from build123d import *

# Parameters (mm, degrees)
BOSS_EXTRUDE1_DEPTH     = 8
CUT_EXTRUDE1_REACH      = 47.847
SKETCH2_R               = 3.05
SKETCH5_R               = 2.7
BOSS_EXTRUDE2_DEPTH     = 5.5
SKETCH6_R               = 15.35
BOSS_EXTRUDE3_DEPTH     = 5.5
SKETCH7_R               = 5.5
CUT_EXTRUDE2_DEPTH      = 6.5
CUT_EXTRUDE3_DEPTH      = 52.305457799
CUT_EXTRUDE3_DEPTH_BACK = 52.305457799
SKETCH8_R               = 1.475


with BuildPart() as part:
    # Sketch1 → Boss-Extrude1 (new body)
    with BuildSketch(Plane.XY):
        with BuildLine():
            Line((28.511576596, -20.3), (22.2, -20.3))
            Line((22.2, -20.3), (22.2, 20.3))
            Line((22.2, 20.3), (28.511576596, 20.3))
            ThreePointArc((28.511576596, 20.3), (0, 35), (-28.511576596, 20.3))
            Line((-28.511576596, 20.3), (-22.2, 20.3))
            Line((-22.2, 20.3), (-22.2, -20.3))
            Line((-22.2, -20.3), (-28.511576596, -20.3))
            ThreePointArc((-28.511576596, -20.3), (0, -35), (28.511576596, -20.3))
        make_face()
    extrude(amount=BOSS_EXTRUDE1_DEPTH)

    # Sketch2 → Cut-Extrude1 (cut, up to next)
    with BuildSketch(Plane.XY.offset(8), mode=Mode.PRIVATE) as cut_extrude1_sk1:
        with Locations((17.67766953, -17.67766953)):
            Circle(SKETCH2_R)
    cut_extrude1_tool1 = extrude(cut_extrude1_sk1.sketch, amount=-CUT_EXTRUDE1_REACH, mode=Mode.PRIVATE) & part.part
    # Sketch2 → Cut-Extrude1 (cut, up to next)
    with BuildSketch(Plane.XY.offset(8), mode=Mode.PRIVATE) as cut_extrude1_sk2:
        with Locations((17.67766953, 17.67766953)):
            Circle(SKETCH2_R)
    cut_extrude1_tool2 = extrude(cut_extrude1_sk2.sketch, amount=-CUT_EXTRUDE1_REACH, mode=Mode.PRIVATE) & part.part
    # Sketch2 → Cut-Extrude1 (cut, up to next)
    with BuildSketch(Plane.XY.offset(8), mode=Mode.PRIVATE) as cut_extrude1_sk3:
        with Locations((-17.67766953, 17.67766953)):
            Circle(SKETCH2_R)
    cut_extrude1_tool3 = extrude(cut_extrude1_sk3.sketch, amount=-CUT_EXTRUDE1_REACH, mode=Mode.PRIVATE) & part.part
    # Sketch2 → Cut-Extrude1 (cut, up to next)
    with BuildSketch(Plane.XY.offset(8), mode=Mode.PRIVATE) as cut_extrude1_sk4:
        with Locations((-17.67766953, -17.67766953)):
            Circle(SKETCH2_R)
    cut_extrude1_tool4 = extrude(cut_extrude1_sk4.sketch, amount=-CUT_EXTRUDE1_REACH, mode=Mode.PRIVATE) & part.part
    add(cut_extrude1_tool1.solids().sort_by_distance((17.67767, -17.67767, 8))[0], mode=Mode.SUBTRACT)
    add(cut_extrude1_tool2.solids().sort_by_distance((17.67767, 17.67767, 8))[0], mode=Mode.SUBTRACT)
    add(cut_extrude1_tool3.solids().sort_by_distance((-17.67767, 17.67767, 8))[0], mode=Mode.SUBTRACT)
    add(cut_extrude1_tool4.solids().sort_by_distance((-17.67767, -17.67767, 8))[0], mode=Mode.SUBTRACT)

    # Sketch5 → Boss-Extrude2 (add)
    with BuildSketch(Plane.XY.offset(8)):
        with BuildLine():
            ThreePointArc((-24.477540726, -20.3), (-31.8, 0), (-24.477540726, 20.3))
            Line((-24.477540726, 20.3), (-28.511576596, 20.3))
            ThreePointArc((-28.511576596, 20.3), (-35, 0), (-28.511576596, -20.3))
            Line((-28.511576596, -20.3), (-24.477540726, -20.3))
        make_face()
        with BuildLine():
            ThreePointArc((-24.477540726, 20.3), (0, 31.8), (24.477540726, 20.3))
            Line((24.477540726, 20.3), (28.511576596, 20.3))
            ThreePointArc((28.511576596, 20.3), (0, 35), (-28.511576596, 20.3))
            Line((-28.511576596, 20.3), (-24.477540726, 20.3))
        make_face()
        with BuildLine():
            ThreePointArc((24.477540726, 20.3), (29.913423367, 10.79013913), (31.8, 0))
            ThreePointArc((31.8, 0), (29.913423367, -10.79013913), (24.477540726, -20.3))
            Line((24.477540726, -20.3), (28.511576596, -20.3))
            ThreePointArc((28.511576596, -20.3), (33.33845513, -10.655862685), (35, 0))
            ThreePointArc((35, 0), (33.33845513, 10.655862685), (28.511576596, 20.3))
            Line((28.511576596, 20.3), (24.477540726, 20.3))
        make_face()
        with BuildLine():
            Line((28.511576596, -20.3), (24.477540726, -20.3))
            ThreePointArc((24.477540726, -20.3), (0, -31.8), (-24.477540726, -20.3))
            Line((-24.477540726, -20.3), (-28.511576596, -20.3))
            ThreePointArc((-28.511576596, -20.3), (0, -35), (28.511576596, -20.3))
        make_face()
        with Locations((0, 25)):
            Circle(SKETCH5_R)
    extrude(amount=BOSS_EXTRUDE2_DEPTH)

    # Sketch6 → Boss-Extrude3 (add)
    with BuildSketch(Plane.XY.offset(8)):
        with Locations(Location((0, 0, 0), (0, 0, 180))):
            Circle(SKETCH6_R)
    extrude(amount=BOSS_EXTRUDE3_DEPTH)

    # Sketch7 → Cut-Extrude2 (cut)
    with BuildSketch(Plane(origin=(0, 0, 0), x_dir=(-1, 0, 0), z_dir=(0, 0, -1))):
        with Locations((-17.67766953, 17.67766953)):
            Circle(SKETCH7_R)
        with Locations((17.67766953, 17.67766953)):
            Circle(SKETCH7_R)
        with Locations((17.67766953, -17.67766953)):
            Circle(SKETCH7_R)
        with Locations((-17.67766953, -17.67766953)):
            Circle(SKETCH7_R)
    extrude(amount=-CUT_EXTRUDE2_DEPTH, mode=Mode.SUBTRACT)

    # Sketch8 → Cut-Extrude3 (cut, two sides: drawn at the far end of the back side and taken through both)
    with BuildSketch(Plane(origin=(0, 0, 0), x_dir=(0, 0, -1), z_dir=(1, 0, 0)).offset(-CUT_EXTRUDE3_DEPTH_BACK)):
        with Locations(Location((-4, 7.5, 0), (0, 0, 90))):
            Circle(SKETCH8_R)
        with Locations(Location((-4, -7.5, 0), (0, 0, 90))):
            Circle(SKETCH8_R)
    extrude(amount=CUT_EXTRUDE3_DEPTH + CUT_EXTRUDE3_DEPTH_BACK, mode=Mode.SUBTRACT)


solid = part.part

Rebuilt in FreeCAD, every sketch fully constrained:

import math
import FreeCAD as App
import Part
import Sketcher
from FreeCAD import Vector

doc = App.newDocument("Part")
body = doc.addObject("PartDesign::Body", "Body")

# Sketch on XY plane
sketch1 = body.newObject("Sketcher::SketchObject", "Sketch")
sketch1.AttachmentSupport = (doc.getObject("XY_Plane"), [""])
sketch1.MapMode = "FlatFace"
sketch1.addGeometry(Part.LineSegment(Vector(28.511577, -20.3, 0), Vector(22.2, -20.3, 0)), False)
sketch1.addGeometry(Part.LineSegment(Vector(22.2, -20.3, 0), Vector(22.2, 20.3, 0)), False)
sketch1.addGeometry(Part.LineSegment(Vector(22.2, 20.3, 0), Vector(28.511577, 20.3, 0)), False)
sketch1.addGeometry(Part.ArcOfCircle(Part.Circle(Vector(0, 0, 0), Vector(0, 0, 1), 35), math.radians(35.450543), math.radians(144.549457)), False)
sketch1.addGeometry(Part.LineSegment(Vector(-28.511577, 20.3, 0), Vector(-22.2, 20.3, 0)), False)
sketch1.addGeometry(Part.LineSegment(Vector(-22.2, 20.3, 0), Vector(-22.2, -20.3, 0)), False)
sketch1.addGeometry(Part.LineSegment(Vector(-22.2, -20.3, 0), Vector(-28.511577, -20.3, 0)), False)
sketch1.addGeometry(Part.ArcOfCircle(Part.Circle(Vector(0, 0, 0), Vector(0, 0, 1), 35), math.radians(-144.549457), math.radians(-35.450543)), False)
sketch1.addConstraint(Sketcher.Constraint("Coincident", 0, 2, 1, 1))
sketch1.addConstraint(Sketcher.Constraint("Coincident", 1, 2, 2, 1))
sketch1.addConstraint(Sketcher.Constraint("Coincident", 2, 2, 3, 1))
sketch1.addConstraint(Sketcher.Constraint("Coincident", 3, 2, 4, 1))
sketch1.addConstraint(Sketcher.Constraint("Coincident", 4, 2, 5, 1))
sketch1.addConstraint(Sketcher.Constraint("Coincident", 5, 2, 6, 1))
sketch1.addConstraint(Sketcher.Constraint("Coincident", 6, 2, 7, 1))
sketch1.addConstraint(Sketcher.Constraint("Coincident", 7, 2, 0, 1))
sketch1.addConstraint(Sketcher.Constraint("Horizontal", 0))
sketch1.addConstraint(Sketcher.Constraint("Vertical", 1))
sketch1.addConstraint(Sketcher.Constraint("Horizontal", 2))
sketch1.addConstraint(Sketcher.Constraint("Horizontal", 4))
sketch1.addConstraint(Sketcher.Constraint("Vertical", 5))
sketch1.addConstraint(Sketcher.Constraint("Horizontal", 6))
sketch1.addConstraint(Sketcher.Constraint("Coincident", 3, 3, -1, 1))
sketch1.addConstraint(Sketcher.Constraint("Coincident", 7, 3, -1, 1))
sketch1.addConstraint(Sketcher.Constraint("Equal", 3, 7))
sketch1.addConstraint(Sketcher.Constraint("Symmetric", 0, 2, 4, 2, -1, 1))
sketch1.addConstraint(Sketcher.Constraint("Horizontal", 2, 2, 3, 2))
sketch1.addConstraint(Sketcher.Constraint("Horizontal", 0, 2, 5, 2))
sketch1.addConstraint(Sketcher.Constraint("Radius", 3, 35.0))
sketch1.addConstraint(Sketcher.Constraint("DistanceY", 1, 1, 1, 2, 40.6))
sketch1.addConstraint(Sketcher.Constraint("DistanceX", -1, 1, 0, 2, 22.2))
pad1 = body.newObject("PartDesign::Pad", "Pad")
pad1.Profile = sketch1
pad1.Length = 8

# Sketch on XY plane
sketch2 = body.newObject("Sketcher::SketchObject", "Sketch001")
sketch2.AttachmentSupport = (doc.getObject("XY_Plane"), [""])
sketch2.MapMode = "FlatFace"
sketch2.AttachmentOffset = App.Placement(Vector(0, 0, 8), App.Rotation())
sketch2.addGeometry(Part.Circle(Vector(17.67767, -17.67767, 0), Vector(0, 0, 1), 3.05), False)
sketch2.addConstraint(Sketcher.Constraint("Diameter", 0, 6.1))
sketch2.addConstraint(Sketcher.Constraint("DistanceX", -1, 1, 0, 3, 17.67767))
sketch2.addConstraint(Sketcher.Constraint("DistanceY", 0, 3, -1, 1, 17.67767))
pocket1 = body.newObject("PartDesign::Pocket", "Pocket")
pocket1.Profile = sketch2
pocket1.Type = "UpToFirst"

# Sketch on XY plane
sketch3 = body.newObject("Sketcher::SketchObject", "Sketch002")
sketch3.AttachmentSupport = (doc.getObject("XY_Plane"), [""])
sketch3.MapMode = "FlatFace"
sketch3.AttachmentOffset = App.Placement(Vector(0, 0, 8), App.Rotation())
sketch3.addGeometry(Part.Circle(Vector(17.67767, 17.67767, 0), Vector(0, 0, 1), 3.05), False)
sketch3.addConstraint(Sketcher.Constraint("Diameter", 0, 6.1))
sketch3.addConstraint(Sketcher.Constraint("DistanceX", -1, 1, 0, 3, 17.67767))
sketch3.addConstraint(Sketcher.Constraint("DistanceY", -1, 1, 0, 3, 17.67767))
pocket2 = body.newObject("PartDesign::Pocket", "Pocket001")
pocket2.Profile = sketch3
pocket2.Type = "UpToFirst"

# Sketch on XY plane
sketch4 = body.newObject("Sketcher::SketchObject", "Sketch003")
sketch4.AttachmentSupport = (doc.getObject("XY_Plane"), [""])
sketch4.MapMode = "FlatFace"
sketch4.AttachmentOffset = App.Placement(Vector(0, 0, 8), App.Rotation())
sketch4.addGeometry(Part.Circle(Vector(-17.67767, 17.67767, 0), Vector(0, 0, 1), 3.05), False)
sketch4.addConstraint(Sketcher.Constraint("Diameter", 0, 6.1))
sketch4.addConstraint(Sketcher.Constraint("DistanceX", 0, 3, -1, 1, 17.67767))
sketch4.addConstraint(Sketcher.Constraint("DistanceY", -1, 1, 0, 3, 17.67767))
pocket3 = body.newObject("PartDesign::Pocket", "Pocket002")
pocket3.Profile = sketch4
pocket3.Type = "UpToFirst"

# Sketch on XY plane
sketch5 = body.newObject("Sketcher::SketchObject", "Sketch004")
sketch5.AttachmentSupport = (doc.getObject("XY_Plane"), [""])
sketch5.MapMode = "FlatFace"
sketch5.AttachmentOffset = App.Placement(Vector(0, 0, 8), App.Rotation())
sketch5.addGeometry(Part.Circle(Vector(-17.67767, -17.67767, 0), Vector(0, 0, 1), 3.05), False)
sketch5.addConstraint(Sketcher.Constraint("Diameter", 0, 6.1))
sketch5.addConstraint(Sketcher.Constraint("DistanceX", 0, 3, -1, 1, 17.67767))
sketch5.addConstraint(Sketcher.Constraint("DistanceY", 0, 3, -1, 1, 17.67767))
pocket4 = body.newObject("PartDesign::Pocket", "Pocket003")
pocket4.Profile = sketch5
pocket4.Type = "UpToFirst"

# Sketch on XY plane
sketch6 = body.newObject("Sketcher::SketchObject", "Sketch005")
sketch6.AttachmentSupport = (doc.getObject("XY_Plane"), [""])
sketch6.MapMode = "FlatFace"
sketch6.AttachmentOffset = App.Placement(Vector(0, 0, 8), App.Rotation())
sketch6.addGeometry(Part.ArcOfCircle(Part.Circle(Vector(0, 0, 0), Vector(0, 0, 1), 35), math.radians(-35.450543), math.radians(0)), False)
sketch6.addGeometry(Part.ArcOfCircle(Part.Circle(Vector(0, 0, 0), Vector(0, 0, 1), 35), math.radians(0), math.radians(35.450543)), False)
sketch6.addGeometry(Part.ArcOfCircle(Part.Circle(Vector(0, 0, 0), Vector(0, 0, 1), 35), math.radians(35.450543), math.radians(144.549457)), False)
sketch6.addGeometry(Part.ArcOfCircle(Part.Circle(Vector(0, 0, 0), Vector(0, 0, 1), 35), math.radians(144.549457), math.radians(215.450543)), False)
sketch6.addGeometry(Part.ArcOfCircle(Part.Circle(Vector(0, 0, 0), Vector(0, 0, 1), 35), math.radians(-144.549457), math.radians(-35.450543)), False)
sketch6.addGeometry(Part.ArcOfCircle(Part.Circle(Vector(0, 0, 0), Vector(0, 0, 1), 31.8), math.radians(140.330007), math.radians(219.669993)), False)
sketch6.addGeometry(Part.ArcOfCircle(Part.Circle(Vector(0, 0, 0), Vector(0, 0, 1), 31.8), math.radians(39.669993), math.radians(140.330007)), False)
sketch6.addGeometry(Part.ArcOfCircle(Part.Circle(Vector(0, 0, 0), Vector(0, 0, 1), 31.8), math.radians(0), math.radians(39.669993)), False)
sketch6.addGeometry(Part.ArcOfCircle(Part.Circle(Vector(0, 0, 0), Vector(0, 0, 1), 31.8), math.radians(-39.669993), math.radians(0)), False)
sketch6.addGeometry(Part.ArcOfCircle(Part.Circle(Vector(0, 0, 0), Vector(0, 0, 1), 31.8), math.radians(-140.330007), math.radians(-39.669993)), False)
sketch6.addGeometry(Part.Circle(Vector(0, 25, 0), Vector(0, 0, 1), 2.7), False)
sketch6.addConstraint(Sketcher.Constraint("Tangent", 0, 2, 1, 1))
sketch6.addConstraint(Sketcher.Constraint("Tangent", 1, 2, 2, 1))
sketch6.addConstraint(Sketcher.Constraint("Tangent", 2, 2, 3, 1))
sketch6.addConstraint(Sketcher.Constraint("Tangent", 3, 2, 4, 1))
sketch6.addConstraint(Sketcher.Constraint("Tangent", 4, 2, 0, 1))
sketch6.addConstraint(Sketcher.Constraint("Tangent", 5, 1, 6, 2))
sketch6.addConstraint(Sketcher.Constraint("Tangent", 6, 1, 7, 2))
sketch6.addConstraint(Sketcher.Constraint("Tangent", 7, 1, 8, 2))
sketch6.addConstraint(Sketcher.Constraint("Tangent", 8, 1, 9, 2))
sketch6.addConstraint(Sketcher.Constraint("Tangent", 9, 1, 5, 2))
sketch6.addConstraint(Sketcher.Constraint("Coincident", 0, 3, -1, 1))
sketch6.addConstraint(Sketcher.Constraint("Coincident", 2, 3, -1, 1))
sketch6.addConstraint(Sketcher.Constraint("Coincident", 5, 3, -1, 1))
sketch6.addConstraint(Sketcher.Constraint("Coincident", 7, 3, -1, 1))
sketch6.addConstraint(Sketcher.Constraint("PointOnObject", 10, 3, -2))
sketch6.addConstraint(Sketcher.Constraint("PointOnObject", 0, 2, -1))
sketch6.addConstraint(Sketcher.Constraint("PointOnObject", 7, 1, -1))
sketch6.addConstraint(Sketcher.Constraint("Horizontal", 1, 2, 2, 2))
sketch6.addConstraint(Sketcher.Constraint("Horizontal", 3, 2, 4, 2))
sketch6.addConstraint(Sketcher.Constraint("Horizontal", 2, 2, 5, 1))
sketch6.addConstraint(Sketcher.Constraint("Horizontal", 5, 1, 6, 1))
sketch6.addConstraint(Sketcher.Constraint("Horizontal", 4, 2, 8, 1))
sketch6.addConstraint(Sketcher.Constraint("Horizontal", 8, 1, 9, 1))
sketch6.addConstraint(Sketcher.Constraint("Vertical", 2, 2, 3, 2))
sketch6.addConstraint(Sketcher.Constraint("Radius", 0, 35.0))
sketch6.addConstraint(Sketcher.Constraint("Diameter", 10, 5.4))
sketch6.addConstraint(Sketcher.Constraint("Radius", 5, 31.8))
sketch6.addConstraint(Sketcher.Constraint("DistanceY", -1, 1, 10, 3, 25.0))
sketch6.addConstraint(Sketcher.Constraint("DistanceY", -1, 1, 1, 2, 20.3))
pad2 = body.newObject("PartDesign::Pad", "Pad001")
pad2.Profile = sketch6
pad2.Length = 5.5

# Sketch on XY plane
sketch7 = body.newObject("Sketcher::SketchObject", "Sketch006")
sketch7.AttachmentSupport = (doc.getObject("XY_Plane"), [""])
sketch7.MapMode = "FlatFace"
sketch7.AttachmentOffset = App.Placement(Vector(0, 0, 8), App.Rotation())
sketch7.addGeometry(Part.Circle(Vector(0, 0, 0), Vector(0, 0, 1), 15.35), False)
sketch7.addConstraint(Sketcher.Constraint("Coincident", 0, 3, -1, 1))
sketch7.addConstraint(Sketcher.Constraint("Diameter", 0, 30.7))
pad3 = body.newObject("PartDesign::Pad", "Pad002")
pad3.Profile = sketch7
pad3.Length = 5.5

# Sketch on XY plane
sketch8 = body.newObject("Sketcher::SketchObject", "Sketch007")
sketch8.AttachmentSupport = (doc.getObject("XY_Plane"), [""])
sketch8.MapMode = "FlatFace"
sketch8.addGeometry(Part.Circle(Vector(17.67767, 17.67767, 0), Vector(0, 0, 1), 5.5), False)
sketch8.addGeometry(Part.Circle(Vector(-17.67767, 17.67767, 0), Vector(0, 0, 1), 5.5), False)
sketch8.addGeometry(Part.Circle(Vector(-17.67767, -17.67767, 0), Vector(0, 0, 1), 5.5), False)
sketch8.addGeometry(Part.Circle(Vector(17.67767, -17.67767, 0), Vector(0, 0, 1), 5.5), False)
sketch8.addConstraint(Sketcher.Constraint("Equal", 0, 1))
sketch8.addConstraint(Sketcher.Constraint("Equal", 1, 2))
sketch8.addConstraint(Sketcher.Constraint("Equal", 2, 3))
sketch8.addConstraint(Sketcher.Constraint("Symmetric", 0, 3, 2, 3, -1, 1))
sketch8.addConstraint(Sketcher.Constraint("Symmetric", 1, 3, 3, 3, -1, 1))
sketch8.addConstraint(Sketcher.Constraint("Symmetric", 0, 3, 1, 3, -2))
sketch8.addConstraint(Sketcher.Constraint("Diameter", 0, 11.0))
sketch8.addConstraint(Sketcher.Constraint("DistanceX", -1, 1, 0, 3, 17.67767))
sketch8.addConstraint(Sketcher.Constraint("DistanceY", -1, 1, 0, 3, 17.67767))
pocket5 = body.newObject("PartDesign::Pocket", "Pocket004")
pocket5.Profile = sketch8
pocket5.Length = 6.5
pocket5.Reversed = True

# Sketch on YZ plane
sketch9 = body.newObject("Sketcher::SketchObject", "Sketch008")
sketch9.AttachmentSupport = (doc.getObject("YZ_Plane"), [""])
sketch9.MapMode = "FlatFace"
sketch9.addGeometry(Part.Circle(Vector(7.5, 4, 0), Vector(0, 0, 1), 1.475), False)
sketch9.addGeometry(Part.Circle(Vector(-7.5, 4, 0), Vector(0, 0, 1), 1.475), False)
sketch9.addConstraint(Sketcher.Constraint("Equal", 0, 1))
sketch9.addConstraint(Sketcher.Constraint("Symmetric", 0, 3, 1, 3, -2))
sketch9.addConstraint(Sketcher.Constraint("Diameter", 0, 2.95))
sketch9.addConstraint(Sketcher.Constraint("DistanceY", -1, 1, 0, 3, 4.0))
sketch9.addConstraint(Sketcher.Constraint("DistanceX", 1, 3, 0, 3, 15.0))
pocket6 = body.newObject("PartDesign::Pocket", "Pocket005")
pocket6.Profile = sketch9
pocket6.Type = "ThroughAll"
pocket6.Midplane = True

doc.recompute()
